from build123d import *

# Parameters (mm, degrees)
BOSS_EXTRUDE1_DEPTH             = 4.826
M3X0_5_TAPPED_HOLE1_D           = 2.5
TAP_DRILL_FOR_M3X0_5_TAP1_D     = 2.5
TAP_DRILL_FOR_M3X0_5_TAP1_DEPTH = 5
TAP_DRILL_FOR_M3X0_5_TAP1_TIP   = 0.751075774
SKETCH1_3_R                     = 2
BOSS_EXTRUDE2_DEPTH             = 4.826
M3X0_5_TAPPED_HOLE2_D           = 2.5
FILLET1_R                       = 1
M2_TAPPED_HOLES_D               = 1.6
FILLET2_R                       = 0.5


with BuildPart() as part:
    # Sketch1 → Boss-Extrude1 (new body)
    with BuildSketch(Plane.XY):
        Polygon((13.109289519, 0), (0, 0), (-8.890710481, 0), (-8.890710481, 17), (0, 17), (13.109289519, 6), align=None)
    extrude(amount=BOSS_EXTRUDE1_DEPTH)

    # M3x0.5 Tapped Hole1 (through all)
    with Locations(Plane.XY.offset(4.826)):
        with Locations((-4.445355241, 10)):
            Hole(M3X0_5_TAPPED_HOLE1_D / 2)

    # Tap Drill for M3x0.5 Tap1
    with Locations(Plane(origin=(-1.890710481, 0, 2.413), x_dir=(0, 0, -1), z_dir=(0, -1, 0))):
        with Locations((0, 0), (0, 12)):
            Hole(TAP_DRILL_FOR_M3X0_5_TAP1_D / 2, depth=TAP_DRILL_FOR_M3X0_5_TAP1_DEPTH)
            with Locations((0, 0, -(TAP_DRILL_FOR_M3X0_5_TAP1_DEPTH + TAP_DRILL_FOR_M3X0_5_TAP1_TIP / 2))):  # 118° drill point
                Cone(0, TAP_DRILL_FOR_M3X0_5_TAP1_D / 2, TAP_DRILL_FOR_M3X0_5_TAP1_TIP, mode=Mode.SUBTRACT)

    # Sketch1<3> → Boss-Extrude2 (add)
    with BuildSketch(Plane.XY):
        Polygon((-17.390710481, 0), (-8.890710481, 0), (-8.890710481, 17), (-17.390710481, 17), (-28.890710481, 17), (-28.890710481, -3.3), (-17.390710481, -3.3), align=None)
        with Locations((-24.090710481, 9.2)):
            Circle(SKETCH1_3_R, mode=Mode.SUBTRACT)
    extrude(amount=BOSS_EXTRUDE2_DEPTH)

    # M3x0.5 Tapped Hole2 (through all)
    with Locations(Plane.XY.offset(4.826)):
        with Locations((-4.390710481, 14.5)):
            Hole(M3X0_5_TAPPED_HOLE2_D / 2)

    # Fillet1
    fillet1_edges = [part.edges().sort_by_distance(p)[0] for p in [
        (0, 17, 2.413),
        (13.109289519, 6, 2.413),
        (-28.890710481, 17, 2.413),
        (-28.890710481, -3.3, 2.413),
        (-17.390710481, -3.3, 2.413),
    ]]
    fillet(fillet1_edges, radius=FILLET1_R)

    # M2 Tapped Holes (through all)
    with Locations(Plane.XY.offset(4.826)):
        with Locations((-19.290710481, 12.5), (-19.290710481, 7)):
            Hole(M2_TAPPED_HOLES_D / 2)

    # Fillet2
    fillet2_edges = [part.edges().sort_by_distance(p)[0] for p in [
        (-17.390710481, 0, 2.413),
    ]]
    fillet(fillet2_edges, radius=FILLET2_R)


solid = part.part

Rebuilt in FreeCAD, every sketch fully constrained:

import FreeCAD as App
import Part
import Sketcher

V = App.Vector
Q = App.Units.Quantity


def edges_at(feature, points):
    """Names of the edges that pass closest to the given points."""
    edges = feature.Shape.Edges
    near = lambda p: min(range(len(edges)), key=lambda i: edges[i].distToShape(Part.Vertex(*p))[0])
    return sorted({f"Edge{near(p) + 1}" for p in points})

doc = App.newDocument("Part")
body = doc.addObject("PartDesign::Body", "Body")

# Sketch on XY plane
sketch1 = doc.addObject("Sketcher::SketchObject", "Sketch")
body.addObject(sketch1)
sketch1.AttachmentSupport = (doc.XY_Plane, [""])
sketch1.MapMode = "FlatFace"
sketch1.addGeometry([
    Part.LineSegment(V(-9, 0, 0), V(13, 0, 0)),  # 0
    Part.LineSegment(V(13, 0, 0), V(13, 6, 0)),  # 1
    Part.LineSegment(V(13, 6, 0), V(0, 17, 0)),  # 2
    Part.LineSegment(V(0, 17, 0), V(-9, 17, 0)),  # 3
    Part.LineSegment(V(-9, 17, 0), V(-9, 0, 0)),  # 4
], False)
sketch1.addConstraint([
    Sketcher.Constraint("Coincident", 0, 2, 1, 1),
    Sketcher.Constraint("Coincident", 1, 2, 2, 1),
    Sketcher.Constraint("Coincident", 2, 2, 3, 1),
    Sketcher.Constraint("Coincident", 3, 2, 4, 1),
    Sketcher.Constraint("Coincident", 4, 2, 0, 1),
    Sketcher.Constraint("Horizontal", 0),
    Sketcher.Constraint("Vertical", 1),
    Sketcher.Constraint("Horizontal", 3),
    Sketcher.Constraint("Vertical", 4),
    Sketcher.Constraint("PointOnObject", 0, 2, -1),
    Sketcher.Constraint("PointOnObject", 2, 2, -2),
    Sketcher.Constraint("DistanceX", 0, 1, 0, 2, 22.0),
    Sketcher.Constraint("DistanceY", 1, 1, 1, 2, 6.0),
    Sketcher.Constraint("DistanceY", 4, 2, 4, 1, 17.0),
    Sketcher.Constraint("Angle", 2, Q("140 deg")),
])
pad1 = doc.addObject("PartDesign::Pad", "Pad")
body.addObject(pad1)
pad1.Profile = sketch1
pad1.Length = 4.826

# Sketch on XY plane
sketch2 = doc.addObject("Sketcher::SketchObject", "Sketch001")
body.addObject(sketch2)
sketch2.AttachmentSupport = (doc.XY_Plane, [""])
sketch2.MapMode = "FlatFace"
sketch2.AttachmentOffset = App.Placement(V(0, 0, 4.826), App.Rotation())
sketch2.addGeometry(Part.Circle(V(-4.4, 10, 0), V(0, 0, 1), 1.2), False)
sketch2.addConstraint([
    Sketcher.Constraint("Diameter", 0, 2.5),
    Sketcher.Constraint("DistanceY", -1, 1, 0, 3, 10.0),
    Sketcher.Constraint("DistanceX", 0, 3, -1, 1, 4.445355),
])
doc.recompute()
hole = doc.addObject("PartDesign::Hole", "Hole")
body.addObject(hole)
hole.Profile = sketch2
hole.ThreadType = "None"
hole.Diameter = 2.5
hole.DepthType = "ThroughAll"

# Sketch on XZ plane
sketch3 = doc.addObject("Sketcher::SketchObject", "Sketch002")
body.addObject(sketch3)
sketch3.AttachmentSupport = (doc.XZ_Plane, [""])
sketch3.MapMode = "FlatFace"
sketch3.addGeometry([
    Part.Circle(V(-1.9, 2.4, 0), V(0, 0, 1), 1.2),
    Part.Circle(V(10.1, 2.4, 0), V(0, 0, 1), 1.2),
], False)
sketch3.addConstraint([
    Sketcher.Constraint("Equal", 0, 1),
    Sketcher.Constraint("Horizontal", 0, 3, 1, 3),
    Sketcher.Constraint("Diameter", 0, 2.5),
    Sketcher.Constraint("DistanceX", 0, 3, 1, 3, 12.0),
    Sketcher.Constraint("DistanceY", -1, 1, 0, 3, 2.413),
    Sketcher.Constraint("DistanceX", 0, 3, -1, 1, 1.89071),
])
doc.recompute()
hole2 = doc.addObject("PartDesign::Hole", "Hole001")
body.addObject(hole2)
hole2.Profile = sketch3
hole2.ThreadType = "None"
hole2.Diameter = 2.5
hole2.DepthType = "Dimension"
hole2.Depth = 5
hole2.DrillPoint = "Angled"
hole2.DrillPointAngle = 118

# Sketch on XY plane
sketch4 = doc.addObject("Sketcher::SketchObject", "Sketch003")
body.addObject(sketch4)
sketch4.AttachmentSupport = (doc.XY_Plane, [""])
sketch4.MapMode = "FlatFace"
sketch4.addGeometry([
    Part.LineSegment(V(-17.4, 0, 0), V(-8.9, 0, 0)),  # 0
    Part.LineSegment(V(-8.9, 0, 0), V(-8.9, 17, 0)),  # 1
    Part.LineSegment(V(-8.9, 17, 0), V(-28.9, 17, 0)),  # 2
    Part.LineSegment(V(-28.9, 17, 0), V(-28.9, -3.3, 0)),  # 3
    Part.LineSegment(V(-28.9, -3.3, 0), V(-17.4, -3.3, 0)),  # 4
    Part.LineSegment(V(-17.4, -3.3, 0), V(-17.4, 0, 0)),  # 5
    Part.Circle(V(-24.1, 9.2, 0), V(0, 0, 1), 2),  # 6
], False)
sketch4.addConstraint([
    Sketcher.Constraint("Coincident", 0, 2, 1, 1),
    Sketcher.Constraint("Coincident", 1, 2, 2, 1),
    Sketcher.Constraint("Coincident", 2, 2, 3, 1),
    Sketcher.Constraint("Coincident", 3, 2, 4, 1),
    Sketcher.Constraint("Coincident", 4, 2, 5, 1),
    Sketcher.Constraint("Coincident", 5, 2, 0, 1),
    Sketcher.Constraint("Horizontal", 0),
    Sketcher.Constraint("Vertical", 1),
    Sketcher.Constraint("Horizontal", 2),
    Sketcher.Constraint("Vertical", 3),
    Sketcher.Constraint("Horizontal", 4),
    Sketcher.Constraint("Vertical", 5),
    Sketcher.Constraint("PointOnObject", 0, 2, -1),
    Sketcher.Constraint("Diameter", 6, 4.0),
    Sketcher.Constraint("DistanceX", 2, 2, 2, 1, 20.0),
    Sketcher.Constraint("DistanceY", 1, 1, 1, 2, 17.0),
    Sketcher.Constraint("DistanceX", 0, 1, 0, 2, 8.5),
    Sketcher.Constraint("DistanceY", 3, 2, 3, 1, 20.3),
    Sketcher.Constraint("DistanceY", -1, 1, 6, 3, 9.2),
    Sketcher.Constraint("DistanceX", 6, 3, 0, 2, 15.2),
    Sketcher.Constraint("DistanceX", 6, 3, -1, 1, 24.09071),
])
pad2 = doc.addObject("PartDesign::Pad", "Pad001")
body.addObject(pad2)
pad2.Profile = sketch4
pad2.Length = 4.826

# Sketch on XY plane
sketch5 = doc.addObject("Sketcher::SketchObject", "Sketch004")
body.addObject(sketch5)
sketch5.AttachmentSupport = (doc.XY_Plane, [""])
sketch5.MapMode = "FlatFace"
sketch5.AttachmentOffset = App.Placement(V(0, 0, 4.826), App.Rotation())
sketch5.addGeometry(Part.Circle(V(-4.4, 14.5, 0), V(0, 0, 1), 1.2), False)
sketch5.addConstraint([
    Sketcher.Constraint("Diameter", 0, 2.5),
    Sketcher.Constraint("DistanceY", -1, 1, 0, 3, 14.5),
    Sketcher.Constraint("DistanceX", 0, 3, -1, 1, 4.39071),
])
doc.recompute()
hole3 = doc.addObject("PartDesign::Hole", "Hole002")
body.addObject(hole3)
hole3.Profile = sketch5
hole3.ThreadType = "None"
hole3.Diameter = 2.5
hole3.DepthType = "ThroughAll"
doc.recompute()

fillet = doc.addObject("PartDesign::Fillet", "Fillet")
body.addObject(fillet)
fillet.Base = (hole3, edges_at(hole3, [
    (0, 17, 2.413),
    (13.109, 6, 2.413),
    (-28.891, 17, 2.413),
    (-28.891, -3.3, 2.413),
    (-17.391, -3.3, 2.413),
]))
fillet.Radius = 1

# Sketch on XY plane
sketch6 = doc.addObject("Sketcher::SketchObject", "Sketch005")
body.addObject(sketch6)
sketch6.AttachmentSupport = (doc.XY_Plane, [""])
sketch6.MapMode = "FlatFace"
sketch6.AttachmentOffset = App.Placement(V(0, 0, 4.826), App.Rotation())
sketch6.addGeometry([
    Part.Circle(V(-19.3, 12.5, 0), V(0, 0, 1), 0.8),
    Part.Circle(V(-19.3, 7, 0), V(0, 0, 1), 0.8),
], False)
sketch6.addConstraint([
    Sketcher.Constraint("Equal", 0, 1),
    Sketcher.Constraint("Vertical", 0, 3, 1, 3),
    Sketcher.Constraint("Diameter", 0, 1.6),
    Sketcher.Constraint("DistanceY", -1, 1, 1, 3, 7.0),
    Sketcher.Constraint("DistanceY", -1, 1, 0, 3, 12.5),
    Sketcher.Constraint("DistanceX", 0, 3, -1, 1, 19.29071),
])
doc.recompute()
hole4 = doc.addObject("PartDesign::Hole", "Hole003")
body.addObject(hole4)
hole4.Profile = sketch6
hole4.ThreadType = "None"
hole4.Diameter = 1.6
hole4.DepthType = "ThroughAll"
doc.recompute()

fillet2 = doc.addObject("PartDesign::Fillet", "Fillet001")
body.addObject(fillet2)
fillet2.Base = (hole4, edges_at(hole4, [(-17.391, 0, 2.413)]))
fillet2.Radius = 0.5

doc.recompute()
